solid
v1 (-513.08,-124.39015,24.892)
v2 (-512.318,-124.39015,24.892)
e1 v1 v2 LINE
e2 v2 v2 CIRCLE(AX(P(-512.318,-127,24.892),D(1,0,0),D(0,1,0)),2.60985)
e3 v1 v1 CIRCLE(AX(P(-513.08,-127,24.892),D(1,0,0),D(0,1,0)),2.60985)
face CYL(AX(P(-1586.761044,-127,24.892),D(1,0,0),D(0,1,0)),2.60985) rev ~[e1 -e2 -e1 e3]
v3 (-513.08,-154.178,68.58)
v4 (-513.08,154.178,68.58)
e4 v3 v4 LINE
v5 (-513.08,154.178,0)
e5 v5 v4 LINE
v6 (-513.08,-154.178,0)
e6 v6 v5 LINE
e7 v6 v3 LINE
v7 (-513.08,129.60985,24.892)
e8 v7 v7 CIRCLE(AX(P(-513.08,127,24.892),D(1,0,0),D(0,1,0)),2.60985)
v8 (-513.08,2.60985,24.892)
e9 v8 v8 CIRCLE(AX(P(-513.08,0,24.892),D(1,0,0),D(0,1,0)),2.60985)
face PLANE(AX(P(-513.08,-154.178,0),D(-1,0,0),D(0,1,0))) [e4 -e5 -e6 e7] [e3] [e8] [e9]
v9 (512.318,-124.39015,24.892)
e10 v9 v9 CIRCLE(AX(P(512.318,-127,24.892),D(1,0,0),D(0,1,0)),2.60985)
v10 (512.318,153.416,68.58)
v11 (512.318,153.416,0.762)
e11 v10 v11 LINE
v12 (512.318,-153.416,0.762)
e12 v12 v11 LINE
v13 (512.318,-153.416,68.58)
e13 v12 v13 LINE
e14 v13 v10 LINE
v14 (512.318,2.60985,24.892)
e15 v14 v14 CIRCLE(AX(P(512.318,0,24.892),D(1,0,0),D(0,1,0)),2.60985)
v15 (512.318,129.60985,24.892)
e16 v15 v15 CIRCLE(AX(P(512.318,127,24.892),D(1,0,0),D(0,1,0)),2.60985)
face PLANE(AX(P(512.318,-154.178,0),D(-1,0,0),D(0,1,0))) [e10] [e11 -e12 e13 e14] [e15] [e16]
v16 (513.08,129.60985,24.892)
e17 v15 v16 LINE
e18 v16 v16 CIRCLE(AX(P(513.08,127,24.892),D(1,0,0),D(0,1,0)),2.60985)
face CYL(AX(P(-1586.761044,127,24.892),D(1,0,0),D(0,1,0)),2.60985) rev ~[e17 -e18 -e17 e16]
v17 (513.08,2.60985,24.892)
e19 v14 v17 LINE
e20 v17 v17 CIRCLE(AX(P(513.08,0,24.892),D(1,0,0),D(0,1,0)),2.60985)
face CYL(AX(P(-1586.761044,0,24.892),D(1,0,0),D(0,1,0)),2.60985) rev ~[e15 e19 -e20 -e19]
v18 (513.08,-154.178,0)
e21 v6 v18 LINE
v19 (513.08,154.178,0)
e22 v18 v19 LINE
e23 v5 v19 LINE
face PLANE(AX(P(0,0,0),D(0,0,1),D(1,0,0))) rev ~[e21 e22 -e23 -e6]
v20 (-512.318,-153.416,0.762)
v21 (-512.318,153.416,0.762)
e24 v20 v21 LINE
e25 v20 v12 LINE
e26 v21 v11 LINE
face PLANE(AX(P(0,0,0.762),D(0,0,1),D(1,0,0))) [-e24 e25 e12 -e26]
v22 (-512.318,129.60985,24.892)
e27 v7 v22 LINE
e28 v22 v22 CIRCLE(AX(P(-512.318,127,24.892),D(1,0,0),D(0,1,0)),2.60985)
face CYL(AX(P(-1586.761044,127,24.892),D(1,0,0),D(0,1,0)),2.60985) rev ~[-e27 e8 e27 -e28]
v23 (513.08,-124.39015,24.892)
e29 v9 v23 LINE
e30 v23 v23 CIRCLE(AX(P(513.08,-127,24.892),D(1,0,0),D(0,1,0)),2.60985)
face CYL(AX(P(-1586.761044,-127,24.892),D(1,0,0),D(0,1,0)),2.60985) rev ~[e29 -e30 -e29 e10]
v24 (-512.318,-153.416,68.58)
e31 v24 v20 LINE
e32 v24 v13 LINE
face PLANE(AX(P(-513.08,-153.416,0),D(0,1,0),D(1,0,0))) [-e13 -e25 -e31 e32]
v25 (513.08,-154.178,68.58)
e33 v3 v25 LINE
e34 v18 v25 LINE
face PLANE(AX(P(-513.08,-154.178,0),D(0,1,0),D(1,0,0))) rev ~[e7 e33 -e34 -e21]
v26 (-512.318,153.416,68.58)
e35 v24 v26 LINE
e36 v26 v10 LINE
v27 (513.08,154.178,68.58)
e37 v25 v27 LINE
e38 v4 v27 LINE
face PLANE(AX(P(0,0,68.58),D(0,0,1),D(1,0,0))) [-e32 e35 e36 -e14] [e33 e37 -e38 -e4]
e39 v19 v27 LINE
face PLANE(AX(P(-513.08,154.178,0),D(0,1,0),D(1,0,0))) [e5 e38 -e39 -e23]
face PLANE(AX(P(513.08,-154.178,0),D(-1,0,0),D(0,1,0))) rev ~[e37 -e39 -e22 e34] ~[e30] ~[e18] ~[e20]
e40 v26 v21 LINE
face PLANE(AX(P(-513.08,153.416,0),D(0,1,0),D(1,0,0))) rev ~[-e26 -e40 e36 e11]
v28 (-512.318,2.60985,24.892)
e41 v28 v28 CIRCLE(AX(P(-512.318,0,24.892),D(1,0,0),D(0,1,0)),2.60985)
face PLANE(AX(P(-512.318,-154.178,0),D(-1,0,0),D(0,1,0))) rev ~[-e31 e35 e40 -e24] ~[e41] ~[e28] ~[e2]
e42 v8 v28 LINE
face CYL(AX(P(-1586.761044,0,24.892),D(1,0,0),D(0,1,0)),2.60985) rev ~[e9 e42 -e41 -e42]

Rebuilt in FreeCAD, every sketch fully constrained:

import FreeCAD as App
import Part
import Sketcher
from FreeCAD import Vector
Q = App.Units.Quantity


def faces_at(feature, points):
    """Names of the faces that lie closest to the given points."""
    faces = feature.Shape.Faces
    near = lambda p: min(range(len(faces)), key=lambda i: faces[i].distToShape(Part.Vertex(*p))[0])
    return sorted({f"Face{near(p) + 1}" for p in points})


def add_polygon(sketch, points):
    """Adds a closed chain of lines whose ends are joined by coincident constraints."""
    first, n = sketch.GeometryCount, len(points)
    for a, b in zip(points, points[1:] + points[:1]):
        sketch.addGeometry(Part.LineSegment(App.Vector(*a, 0), App.Vector(*b, 0)), False)
    for i in range(n):
        sketch.addConstraint(Sketcher.Constraint("Coincident", first + i, 2, first + (i + 1) % n, 1))

doc = App.newDocument("Part")
body = doc.addObject("PartDesign::Body", "Body")

sketch1 = body.newObject("Sketcher::SketchObject", "Sketch")
sketch1.AttachmentSupport = (doc.getObject("XY_Plane"), [""])
sketch1.MapMode = "FlatFace"
add_polygon(sketch1, [(-513, 154), (-513, -154), (513, -154), (513, 154)])
sketch1.addConstraint(Sketcher.Constraint("Vertical", 0))
sketch1.addConstraint(Sketcher.Constraint("Horizontal", 1))
sketch1.addConstraint(Sketcher.Constraint("Vertical", 2))
sketch1.addConstraint(Sketcher.Constraint("Horizontal", 3))
sketch1.addConstraint(Sketcher.Constraint("Symmetric", 0, 2, 2, 2, -1, 1))
sketch1.addConstraint(Sketcher.Constraint("DistanceX", 1, 1, 1, 2, Q("40.4 in")))
sketch1.addConstraint(Sketcher.Constraint("DistanceY", 0, 2, 0, 1, Q("12.14 in")))
pad1 = body.newObject("PartDesign::Pad", "Pad")
pad1.Profile = sketch1
pad1.Length = Q("2.7 in")
doc.recompute()

thickness = body.newObject("PartDesign::Thickness", "Thickness")
thickness.Base = (pad1, faces_at(pad1, [(0, 0, 68.58)]))
thickness.Value = Q("0.03 in")
thickness.Reversed = True
thickness.Join = "Arc"

sketch2 = body.newObject("Sketcher::SketchObject", "Sketch001")
sketch2.AttachmentSupport = (doc.getObject("YZ_Plane"), [""])
sketch2.MapMode = "FlatFace"
sketch2.AttachmentOffset = App.Placement(Vector(0, 0, -20.2 * 25.4), App.Rotation())
sketch2.addGeometry(Part.Circle(Vector(127, 24.9, 0), Vector(0, 0, 1), 2.6), False)
sketch2.addGeometry(Part.Circle(Vector(0, 24.9, 0), Vector(0, 0, 1), 2.6), False)
sketch2.addGeometry(Part.Circle(Vector(-127, 24.9, 0), Vector(0, 0, 1), 2.6), False)
sketch2.addConstraint(Sketcher.Constraint("Equal", 0, 1))
sketch2.addConstraint(Sketcher.Constraint("Equal", 1, 2))
sketch2.addConstraint(Sketcher.Constraint("Symmetric", 0, 3, 2, 3, -2))
sketch2.addConstraint(Sketcher.Constraint("PointOnObject", 1, 3, -2))
sketch2.addConstraint(Sketcher.Constraint("Horizontal", 0, 3, 1, 3))
sketch2.addConstraint(Sketcher.Constraint("DistanceX", -1, 1, 0, 3, Q("5 in")))
sketch2.addConstraint(Sketcher.Constraint("Diameter", 0, Q("0.2055 in")))
sketch2.addConstraint(Sketcher.Constraint("DistanceY", -1, 1, 0, 3, Q("0.98 in")))
doc.recompute()
hole = body.newObject("PartDesign::Hole", "Hole")
hole.Profile = sketch2
hole.ThreadType = "None"
hole.Diameter = Q("0.2055 in")
hole.DepthType = "ThroughAll"
hole.Reversed = True

doc.recompute()
